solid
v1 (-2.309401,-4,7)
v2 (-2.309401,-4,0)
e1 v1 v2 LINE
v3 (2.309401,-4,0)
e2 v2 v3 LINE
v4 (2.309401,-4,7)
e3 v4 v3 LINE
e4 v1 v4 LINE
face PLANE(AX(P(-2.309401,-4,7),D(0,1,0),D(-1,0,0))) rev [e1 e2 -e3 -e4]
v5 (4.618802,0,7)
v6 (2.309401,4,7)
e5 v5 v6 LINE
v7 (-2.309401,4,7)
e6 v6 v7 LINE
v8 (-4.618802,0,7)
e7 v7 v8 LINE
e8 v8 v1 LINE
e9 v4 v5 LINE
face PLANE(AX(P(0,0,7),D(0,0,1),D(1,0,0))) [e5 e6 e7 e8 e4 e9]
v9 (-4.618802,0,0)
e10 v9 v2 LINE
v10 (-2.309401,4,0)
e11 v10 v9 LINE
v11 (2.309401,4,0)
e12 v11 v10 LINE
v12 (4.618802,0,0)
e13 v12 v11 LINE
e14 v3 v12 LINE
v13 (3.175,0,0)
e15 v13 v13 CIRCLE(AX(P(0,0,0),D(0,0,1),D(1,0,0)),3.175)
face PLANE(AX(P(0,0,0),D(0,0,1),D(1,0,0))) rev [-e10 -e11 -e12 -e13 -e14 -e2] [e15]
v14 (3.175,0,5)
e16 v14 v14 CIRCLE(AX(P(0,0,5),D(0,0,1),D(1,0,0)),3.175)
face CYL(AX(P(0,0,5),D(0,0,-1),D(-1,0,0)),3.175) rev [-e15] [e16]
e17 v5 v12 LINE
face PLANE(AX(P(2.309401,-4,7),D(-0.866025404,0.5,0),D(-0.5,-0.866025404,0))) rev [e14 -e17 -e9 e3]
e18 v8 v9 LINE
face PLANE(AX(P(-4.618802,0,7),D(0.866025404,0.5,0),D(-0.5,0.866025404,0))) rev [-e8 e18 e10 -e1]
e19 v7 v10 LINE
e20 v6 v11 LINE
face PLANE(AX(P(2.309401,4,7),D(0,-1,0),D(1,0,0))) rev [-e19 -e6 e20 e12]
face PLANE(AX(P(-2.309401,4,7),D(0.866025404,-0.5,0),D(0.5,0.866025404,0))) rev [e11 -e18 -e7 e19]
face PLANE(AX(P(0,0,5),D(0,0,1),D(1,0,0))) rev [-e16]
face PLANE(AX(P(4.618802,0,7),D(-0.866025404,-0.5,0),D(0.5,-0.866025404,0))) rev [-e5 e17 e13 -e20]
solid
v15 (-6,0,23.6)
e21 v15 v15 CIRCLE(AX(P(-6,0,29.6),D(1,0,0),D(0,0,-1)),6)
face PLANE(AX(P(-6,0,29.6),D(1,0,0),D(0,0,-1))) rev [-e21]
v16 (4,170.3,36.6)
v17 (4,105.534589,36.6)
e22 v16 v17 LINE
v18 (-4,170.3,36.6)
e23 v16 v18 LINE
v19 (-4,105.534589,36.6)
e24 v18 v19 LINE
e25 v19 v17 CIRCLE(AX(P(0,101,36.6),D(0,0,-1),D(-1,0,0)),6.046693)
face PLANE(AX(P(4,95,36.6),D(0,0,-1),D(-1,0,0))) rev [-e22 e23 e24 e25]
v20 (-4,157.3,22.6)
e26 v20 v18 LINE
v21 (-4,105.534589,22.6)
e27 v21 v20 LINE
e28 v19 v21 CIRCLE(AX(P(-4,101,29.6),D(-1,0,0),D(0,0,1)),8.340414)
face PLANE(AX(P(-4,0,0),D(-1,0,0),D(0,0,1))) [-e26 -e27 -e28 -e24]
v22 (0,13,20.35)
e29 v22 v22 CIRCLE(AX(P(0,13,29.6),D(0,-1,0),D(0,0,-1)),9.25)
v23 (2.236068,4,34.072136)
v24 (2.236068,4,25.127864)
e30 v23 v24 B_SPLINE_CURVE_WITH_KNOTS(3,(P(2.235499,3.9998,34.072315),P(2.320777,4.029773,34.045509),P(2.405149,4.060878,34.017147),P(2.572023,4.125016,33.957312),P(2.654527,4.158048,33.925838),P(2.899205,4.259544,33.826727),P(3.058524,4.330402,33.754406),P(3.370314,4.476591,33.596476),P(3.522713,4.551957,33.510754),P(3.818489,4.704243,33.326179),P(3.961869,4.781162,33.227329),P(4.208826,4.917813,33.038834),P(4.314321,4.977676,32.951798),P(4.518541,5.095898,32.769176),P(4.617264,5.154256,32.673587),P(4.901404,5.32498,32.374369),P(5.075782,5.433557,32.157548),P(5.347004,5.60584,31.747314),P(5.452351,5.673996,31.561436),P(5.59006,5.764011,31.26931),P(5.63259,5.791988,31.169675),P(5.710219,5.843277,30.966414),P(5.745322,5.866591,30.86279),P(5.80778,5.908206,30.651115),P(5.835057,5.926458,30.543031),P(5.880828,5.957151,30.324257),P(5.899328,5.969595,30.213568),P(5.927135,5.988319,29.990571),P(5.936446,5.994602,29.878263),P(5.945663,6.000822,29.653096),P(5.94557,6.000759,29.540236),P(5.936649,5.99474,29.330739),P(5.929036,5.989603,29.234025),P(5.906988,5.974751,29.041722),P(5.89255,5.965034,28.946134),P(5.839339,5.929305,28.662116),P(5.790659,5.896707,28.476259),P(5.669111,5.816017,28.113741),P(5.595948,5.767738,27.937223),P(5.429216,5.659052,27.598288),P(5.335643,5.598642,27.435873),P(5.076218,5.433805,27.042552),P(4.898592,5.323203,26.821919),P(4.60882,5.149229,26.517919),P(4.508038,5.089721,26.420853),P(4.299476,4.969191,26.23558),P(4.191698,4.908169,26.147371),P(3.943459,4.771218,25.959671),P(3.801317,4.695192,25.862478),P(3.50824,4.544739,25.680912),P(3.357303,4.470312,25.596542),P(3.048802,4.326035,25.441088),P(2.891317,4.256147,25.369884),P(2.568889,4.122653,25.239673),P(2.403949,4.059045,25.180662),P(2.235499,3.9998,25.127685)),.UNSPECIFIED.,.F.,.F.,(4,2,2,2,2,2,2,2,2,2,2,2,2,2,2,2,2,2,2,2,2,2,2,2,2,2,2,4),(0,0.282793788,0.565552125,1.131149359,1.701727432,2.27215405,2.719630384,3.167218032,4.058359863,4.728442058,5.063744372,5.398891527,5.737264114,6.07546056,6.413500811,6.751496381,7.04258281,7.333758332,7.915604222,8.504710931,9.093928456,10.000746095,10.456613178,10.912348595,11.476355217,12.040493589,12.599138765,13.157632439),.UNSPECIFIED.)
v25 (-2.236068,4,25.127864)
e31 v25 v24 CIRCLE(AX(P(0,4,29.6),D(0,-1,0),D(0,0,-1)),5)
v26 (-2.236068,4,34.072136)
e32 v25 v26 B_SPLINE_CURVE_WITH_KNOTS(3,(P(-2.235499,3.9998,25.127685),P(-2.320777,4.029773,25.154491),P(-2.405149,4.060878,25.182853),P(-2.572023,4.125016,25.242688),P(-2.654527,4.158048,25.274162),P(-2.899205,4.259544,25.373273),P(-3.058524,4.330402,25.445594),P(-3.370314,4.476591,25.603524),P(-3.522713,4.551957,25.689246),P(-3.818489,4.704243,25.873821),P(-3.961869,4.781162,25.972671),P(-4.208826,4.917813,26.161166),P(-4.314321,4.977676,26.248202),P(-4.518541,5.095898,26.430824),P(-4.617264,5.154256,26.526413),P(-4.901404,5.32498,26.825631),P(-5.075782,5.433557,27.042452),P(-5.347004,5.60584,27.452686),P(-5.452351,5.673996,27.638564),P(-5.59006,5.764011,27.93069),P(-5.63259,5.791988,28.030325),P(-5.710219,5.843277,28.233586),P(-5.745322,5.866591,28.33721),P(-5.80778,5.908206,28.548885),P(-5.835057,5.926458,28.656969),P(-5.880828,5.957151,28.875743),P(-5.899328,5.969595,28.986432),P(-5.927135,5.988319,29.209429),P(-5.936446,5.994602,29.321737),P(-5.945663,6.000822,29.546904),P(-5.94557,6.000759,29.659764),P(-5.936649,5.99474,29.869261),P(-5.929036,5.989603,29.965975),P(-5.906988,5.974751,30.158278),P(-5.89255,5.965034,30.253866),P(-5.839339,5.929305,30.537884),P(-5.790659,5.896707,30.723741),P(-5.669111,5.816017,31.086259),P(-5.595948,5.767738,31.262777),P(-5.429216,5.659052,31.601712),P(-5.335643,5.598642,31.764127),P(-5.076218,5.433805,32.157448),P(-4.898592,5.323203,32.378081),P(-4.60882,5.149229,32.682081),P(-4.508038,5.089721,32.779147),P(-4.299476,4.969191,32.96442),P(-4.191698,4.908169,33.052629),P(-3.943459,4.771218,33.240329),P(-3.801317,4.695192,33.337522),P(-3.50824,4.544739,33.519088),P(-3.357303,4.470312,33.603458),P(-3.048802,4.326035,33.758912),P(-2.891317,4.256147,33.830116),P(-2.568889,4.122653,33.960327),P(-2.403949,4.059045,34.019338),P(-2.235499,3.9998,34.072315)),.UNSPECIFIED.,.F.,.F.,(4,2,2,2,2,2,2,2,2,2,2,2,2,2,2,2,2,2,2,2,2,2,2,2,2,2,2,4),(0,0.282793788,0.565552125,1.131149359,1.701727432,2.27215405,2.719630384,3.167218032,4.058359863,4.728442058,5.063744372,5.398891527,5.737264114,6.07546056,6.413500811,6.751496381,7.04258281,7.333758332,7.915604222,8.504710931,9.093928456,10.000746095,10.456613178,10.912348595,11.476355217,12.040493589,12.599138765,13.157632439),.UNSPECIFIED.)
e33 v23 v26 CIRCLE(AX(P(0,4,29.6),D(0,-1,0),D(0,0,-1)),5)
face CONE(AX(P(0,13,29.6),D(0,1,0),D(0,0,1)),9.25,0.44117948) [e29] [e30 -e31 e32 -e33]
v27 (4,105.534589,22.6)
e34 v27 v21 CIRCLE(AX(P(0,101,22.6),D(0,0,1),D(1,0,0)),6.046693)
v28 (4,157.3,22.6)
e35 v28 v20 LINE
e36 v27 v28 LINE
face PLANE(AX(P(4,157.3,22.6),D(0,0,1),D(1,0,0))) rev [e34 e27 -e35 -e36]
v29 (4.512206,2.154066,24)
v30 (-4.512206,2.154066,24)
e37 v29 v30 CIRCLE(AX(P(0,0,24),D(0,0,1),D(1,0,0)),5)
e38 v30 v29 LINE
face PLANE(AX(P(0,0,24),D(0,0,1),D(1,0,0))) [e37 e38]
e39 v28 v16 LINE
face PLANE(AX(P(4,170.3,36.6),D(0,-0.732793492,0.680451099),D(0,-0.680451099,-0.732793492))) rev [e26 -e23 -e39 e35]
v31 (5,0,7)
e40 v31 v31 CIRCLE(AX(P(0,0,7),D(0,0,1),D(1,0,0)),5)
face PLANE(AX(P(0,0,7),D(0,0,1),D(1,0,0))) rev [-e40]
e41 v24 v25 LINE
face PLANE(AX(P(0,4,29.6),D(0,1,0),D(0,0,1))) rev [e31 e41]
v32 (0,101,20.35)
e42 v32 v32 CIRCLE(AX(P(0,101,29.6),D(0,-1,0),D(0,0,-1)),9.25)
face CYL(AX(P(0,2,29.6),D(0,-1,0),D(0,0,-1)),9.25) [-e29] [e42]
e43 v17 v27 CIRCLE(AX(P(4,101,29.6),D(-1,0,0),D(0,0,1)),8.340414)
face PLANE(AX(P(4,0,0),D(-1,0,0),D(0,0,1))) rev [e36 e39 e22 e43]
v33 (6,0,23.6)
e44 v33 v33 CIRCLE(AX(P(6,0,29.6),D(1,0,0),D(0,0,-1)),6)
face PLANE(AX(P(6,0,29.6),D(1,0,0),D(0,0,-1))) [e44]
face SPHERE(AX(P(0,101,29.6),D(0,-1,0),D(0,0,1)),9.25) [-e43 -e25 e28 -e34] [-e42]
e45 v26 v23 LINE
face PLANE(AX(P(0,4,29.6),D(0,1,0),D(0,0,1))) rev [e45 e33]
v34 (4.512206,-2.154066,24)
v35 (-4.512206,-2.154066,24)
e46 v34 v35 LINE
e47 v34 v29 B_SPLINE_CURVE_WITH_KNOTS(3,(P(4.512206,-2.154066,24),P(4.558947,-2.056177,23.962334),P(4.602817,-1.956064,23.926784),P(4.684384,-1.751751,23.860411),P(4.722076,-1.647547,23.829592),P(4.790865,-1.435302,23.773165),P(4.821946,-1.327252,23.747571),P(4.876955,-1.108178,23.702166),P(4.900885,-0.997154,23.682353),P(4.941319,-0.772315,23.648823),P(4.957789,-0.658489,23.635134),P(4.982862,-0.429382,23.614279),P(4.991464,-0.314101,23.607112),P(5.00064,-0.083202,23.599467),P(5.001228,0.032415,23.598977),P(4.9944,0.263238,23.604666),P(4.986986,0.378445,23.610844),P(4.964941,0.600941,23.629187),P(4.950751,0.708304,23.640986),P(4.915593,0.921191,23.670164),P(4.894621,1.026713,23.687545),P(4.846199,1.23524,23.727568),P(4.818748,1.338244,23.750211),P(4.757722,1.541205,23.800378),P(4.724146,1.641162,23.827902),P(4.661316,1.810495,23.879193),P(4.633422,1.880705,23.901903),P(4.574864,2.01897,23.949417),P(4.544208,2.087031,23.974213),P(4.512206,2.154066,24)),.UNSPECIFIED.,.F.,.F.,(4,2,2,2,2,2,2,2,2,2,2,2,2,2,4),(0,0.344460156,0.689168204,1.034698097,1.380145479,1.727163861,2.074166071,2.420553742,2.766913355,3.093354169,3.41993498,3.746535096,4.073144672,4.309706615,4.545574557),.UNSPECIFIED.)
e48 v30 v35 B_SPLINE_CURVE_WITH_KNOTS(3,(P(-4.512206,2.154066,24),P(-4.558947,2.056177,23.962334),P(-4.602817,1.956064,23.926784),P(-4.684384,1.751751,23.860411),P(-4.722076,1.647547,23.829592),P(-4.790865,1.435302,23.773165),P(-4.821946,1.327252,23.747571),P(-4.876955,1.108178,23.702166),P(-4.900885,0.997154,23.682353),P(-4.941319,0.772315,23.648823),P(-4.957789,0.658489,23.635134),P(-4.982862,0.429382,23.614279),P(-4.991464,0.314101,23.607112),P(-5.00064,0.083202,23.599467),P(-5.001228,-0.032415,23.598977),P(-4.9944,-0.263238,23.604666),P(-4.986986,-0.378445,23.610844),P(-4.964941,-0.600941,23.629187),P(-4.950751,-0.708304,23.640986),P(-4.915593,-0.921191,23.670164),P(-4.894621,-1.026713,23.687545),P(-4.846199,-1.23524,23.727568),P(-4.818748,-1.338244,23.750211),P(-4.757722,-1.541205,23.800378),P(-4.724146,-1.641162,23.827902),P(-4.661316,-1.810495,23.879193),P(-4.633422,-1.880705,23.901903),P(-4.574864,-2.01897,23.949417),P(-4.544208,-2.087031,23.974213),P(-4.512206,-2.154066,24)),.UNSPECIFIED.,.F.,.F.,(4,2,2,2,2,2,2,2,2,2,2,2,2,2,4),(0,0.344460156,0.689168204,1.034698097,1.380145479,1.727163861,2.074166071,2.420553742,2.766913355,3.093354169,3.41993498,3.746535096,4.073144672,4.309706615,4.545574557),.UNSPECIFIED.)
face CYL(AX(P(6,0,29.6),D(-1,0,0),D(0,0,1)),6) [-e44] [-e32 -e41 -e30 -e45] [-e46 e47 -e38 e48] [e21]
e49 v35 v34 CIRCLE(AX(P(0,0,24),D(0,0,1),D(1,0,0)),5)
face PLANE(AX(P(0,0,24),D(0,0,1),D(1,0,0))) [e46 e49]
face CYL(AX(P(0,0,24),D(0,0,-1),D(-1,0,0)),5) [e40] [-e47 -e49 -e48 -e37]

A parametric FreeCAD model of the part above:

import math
import FreeCAD as App
import Part
import Sketcher
from FreeCAD import Vector
Q = App.Units.Quantity

doc = App.newDocument("Part")
body = doc.addObject("PartDesign::Body", "Body")

sketch1 = body.newObject("Sketcher::SketchObject", "Sketch")
sketch1.AttachmentSupport = (doc.getObject("XY_Plane"), [""])
sketch1.MapMode = "FlatFace"
sketch1.addGeometry([
    Part.LineSegment(Vector(4.6, 0, 0), Vector(2.3, 4, 0)),
    Part.LineSegment(Vector(2.3, 4, 0), Vector(-2.3, 4, 0)),
    Part.LineSegment(Vector(-2.3, 4, 0), Vector(-4.6, 0, 0)),
    Part.LineSegment(Vector(-4.6, 0, 0), Vector(-2.3, -4, 0)),
    Part.LineSegment(Vector(-2.3, -4, 0), Vector(2.3, -4, 0)),
    Part.LineSegment(Vector(2.3, -4, 0), Vector(4.6, 0, 0)),
], False)
sketch1.addConstraint([
    Sketcher.Constraint("Coincident", 0, 2, 1, 1),
    Sketcher.Constraint("Coincident", 1, 2, 2, 1),
    Sketcher.Constraint("Coincident", 2, 2, 3, 1),
    Sketcher.Constraint("Coincident", 3, 2, 4, 1),
    Sketcher.Constraint("Coincident", 4, 2, 5, 1),
    Sketcher.Constraint("Coincident", 5, 2, 0, 1),
    Sketcher.Constraint("Horizontal", 1),
    Sketcher.Constraint("Horizontal", 4),
    Sketcher.Constraint("Symmetric", 0, 2, 3, 2, -1, 1),
    Sketcher.Constraint("Symmetric", 2, 2, 5, 2, -1, 1),
    Sketcher.Constraint("PointOnObject", 2, 2, -1),
    Sketcher.Constraint("Parallel", 2, 5),
    Sketcher.Constraint("Vertical", 1, 2, 3, 2),
    Sketcher.Constraint("Angle", 0, Q("120 deg")),
    Sketcher.Constraint("DistanceY", -1, 1, 0, 2, Q("4 mm")),
    Sketcher.Constraint("DistanceX", -1, 1, 0, 2, Q("2.309401 mm")),
])
pad1 = body.newObject("PartDesign::Pad", "Pad")
pad1.Profile = sketch1
pad1.Length = 7

sketch2 = body.newObject("Sketcher::SketchObject", "Sketch001")
sketch2.AttachmentSupport = (doc.getObject("XY_Plane"), [""])
sketch2.MapMode = "FlatFace"
sketch2.addGeometry(Part.Circle(Vector(0, 0, 0), Vector(0, 0, 1), 3.2), False)
sketch2.addConstraint([
    Sketcher.Constraint("Coincident", 0, 3, -1, 1),
    Sketcher.Constraint("Diameter", 0, Q("6.35 mm")),
])
pocket1 = body.newObject("PartDesign::Pocket", "Pocket")
pocket1.Profile = sketch2
pocket1.Length = 5
pocket1.Reversed = True
body2 = doc.addObject("PartDesign::Body", "Body001")

sketch3 = body2.newObject("Sketcher::SketchObject", "Sketch002")
sketch3.AttachmentSupport = (doc.getObject("XY_Plane001"), [""])
sketch3.MapMode = "FlatFace"
sketch3.AttachmentOffset = App.Placement(Vector(0, 0, 7), App.Rotation())
sketch3.addGeometry(Part.Circle(Vector(0, 0, 0), Vector(0, 0, 1), 5), False)
sketch3.addConstraint([
    Sketcher.Constraint("Coincident", 0, 3, -1, 1),
    Sketcher.Constraint("Diameter", 0, Q("10 mm")),
])
pad2 = body2.newObject("PartDesign::Pad", "Pad001")
pad2.Profile = sketch3
pad2.Length = 17

sketch4 = body2.newObject("Sketcher::SketchObject", "Sketch003")
sketch4.AttachmentSupport = (doc.getObject("YZ_Plane001"), [""])
sketch4.MapMode = "FlatFace"
sketch4.addGeometry(Part.Circle(Vector(0, 30, 0), Vector(0, 0, 1), 6), False)
sketch4.addConstraint([
    Sketcher.Constraint("PointOnObject", 0, 3, -2),
    Sketcher.Constraint("Diameter", 0, Q("12 mm")),
    Sketcher.Constraint("DistanceY", -1, 1, 0, 3, Q("29.6 mm")),
])
pad3 = body2.newObject("PartDesign::Pad", "Pad002")
pad3.Profile = sketch4
pad3.Length = 12
pad3.Midplane = True

sketch5 = body2.newObject("Sketcher::SketchObject", "Sketch004")
sketch5.AttachmentSupport = (doc.getObject("YZ_Plane001"), [""])
sketch5.MapMode = "FlatFace"
sketch5.addGeometry([
    Part.LineSegment(Vector(4, 35, 0), Vector(4, 30, 0)),
    Part.LineSegment(Vector(4, 30, 0), Vector(110, 30, 0)),
    Part.ArcOfCircle(Part.Circle(Vector(101, 30, 0), Vector(0, 0, 1), 9), math.radians(0), math.radians(90)),
    Part.LineSegment(Vector(101, 39, 0), Vector(13, 39, 0)),
    Part.LineSegment(Vector(13, 39, 0), Vector(4, 35, 0)),
], False)
sketch5.addGeometry(Part.LineSegment(Vector(4, 30, 0), Vector(110, 30, 0)), True)
sketch5.addConstraint([
    Sketcher.Constraint("Coincident", 0, 2, 1, 1),
    Sketcher.Constraint("Coincident", 1, 2, 2, 1),
    Sketcher.Constraint("Tangent", 2, 2, 3, 1),
    Sketcher.Constraint("Coincident", 3, 2, 4, 1),
    Sketcher.Constraint("Coincident", 4, 2, 0, 1),
    Sketcher.Constraint("Vertical", 0),
    Sketcher.Constraint("Horizontal", 1),
    Sketcher.Constraint("Horizontal", 3),
    Sketcher.Constraint("Horizontal", 5),
    Sketcher.Constraint("Coincident", 5, 1, 0, 2),
    Sketcher.Constraint("Horizontal", 2, 3, 0, 2),
    Sketcher.Constraint("Equal", 1, 5),
    Sketcher.Constraint("DistanceX", 3, 2, 3, 1, Q("88 mm")),
    Sketcher.Constraint("DistanceY", 0, 2, 0, 1, Q("5 mm")),
    Sketcher.Constraint("Radius", 2, Q("9.25 mm")),
    Sketcher.Constraint("DistanceX", -1, 1, 2, 3, Q("101 mm")),
    Sketcher.Constraint("DistanceX", -1, 1, 0, 2, Q("4 mm")),
    Sketcher.Constraint("DistanceY", -1, 1, 2, 3, Q("29.6 mm")),
])
revolution = body2.newObject("PartDesign::Revolution", "Revolution")
revolution.Profile = sketch5
revolution.ReferenceAxis = (sketch5, ["Axis0"])
revolution.Angle = 360

sketch6 = body2.newObject("Sketcher::SketchObject", "Sketch005")
sketch6.AttachmentSupport = (doc.getObject("YZ_Plane001"), [""])
sketch6.MapMode = "FlatFace"
sketch6.addGeometry([
    Part.LineSegment(Vector(95, 37, 0), Vector(95, 23, 0)),
    Part.LineSegment(Vector(95, 23, 0), Vector(157, 23, 0)),
    Part.LineSegment(Vector(157, 23, 0), Vector(170, 37, 0)),
    Part.LineSegment(Vector(170, 37, 0), Vector(95, 37, 0)),
], False)
sketch6.addConstraint([
    Sketcher.Constraint("Coincident", 0, 2, 1, 1),
    Sketcher.Constraint("Coincident", 1, 2, 2, 1),
    Sketcher.Constraint("Coincident", 2, 2, 3, 1),
    Sketcher.Constraint("Coincident", 3, 2, 0, 1),
    Sketcher.Constraint("Vertical", 0),
    Sketcher.Constraint("Horizontal", 1),
    Sketcher.Constraint("Horizontal", 3),
    Sketcher.Constraint("DistanceY", 0, 2, 0, 1, Q("14 mm")),
    Sketcher.Constraint("DistanceX", 1, 1, 1, 2, Q("62.3 mm")),
    Sketcher.Constraint("DistanceX", 3, 2, 3, 1, Q("75.3 mm")),
    Sketcher.Constraint("DistanceX", -1, 1, 0, 2, Q("95 mm")),
    Sketcher.Constraint("DistanceY", -1, 1, 0, 2, Q("22.6 mm")),
])
pad4 = body2.newObject("PartDesign::Pad", "Pad003")
pad4.Profile = sketch6
pad4.Length = 8
pad4.Midplane = True

doc.recompute()
